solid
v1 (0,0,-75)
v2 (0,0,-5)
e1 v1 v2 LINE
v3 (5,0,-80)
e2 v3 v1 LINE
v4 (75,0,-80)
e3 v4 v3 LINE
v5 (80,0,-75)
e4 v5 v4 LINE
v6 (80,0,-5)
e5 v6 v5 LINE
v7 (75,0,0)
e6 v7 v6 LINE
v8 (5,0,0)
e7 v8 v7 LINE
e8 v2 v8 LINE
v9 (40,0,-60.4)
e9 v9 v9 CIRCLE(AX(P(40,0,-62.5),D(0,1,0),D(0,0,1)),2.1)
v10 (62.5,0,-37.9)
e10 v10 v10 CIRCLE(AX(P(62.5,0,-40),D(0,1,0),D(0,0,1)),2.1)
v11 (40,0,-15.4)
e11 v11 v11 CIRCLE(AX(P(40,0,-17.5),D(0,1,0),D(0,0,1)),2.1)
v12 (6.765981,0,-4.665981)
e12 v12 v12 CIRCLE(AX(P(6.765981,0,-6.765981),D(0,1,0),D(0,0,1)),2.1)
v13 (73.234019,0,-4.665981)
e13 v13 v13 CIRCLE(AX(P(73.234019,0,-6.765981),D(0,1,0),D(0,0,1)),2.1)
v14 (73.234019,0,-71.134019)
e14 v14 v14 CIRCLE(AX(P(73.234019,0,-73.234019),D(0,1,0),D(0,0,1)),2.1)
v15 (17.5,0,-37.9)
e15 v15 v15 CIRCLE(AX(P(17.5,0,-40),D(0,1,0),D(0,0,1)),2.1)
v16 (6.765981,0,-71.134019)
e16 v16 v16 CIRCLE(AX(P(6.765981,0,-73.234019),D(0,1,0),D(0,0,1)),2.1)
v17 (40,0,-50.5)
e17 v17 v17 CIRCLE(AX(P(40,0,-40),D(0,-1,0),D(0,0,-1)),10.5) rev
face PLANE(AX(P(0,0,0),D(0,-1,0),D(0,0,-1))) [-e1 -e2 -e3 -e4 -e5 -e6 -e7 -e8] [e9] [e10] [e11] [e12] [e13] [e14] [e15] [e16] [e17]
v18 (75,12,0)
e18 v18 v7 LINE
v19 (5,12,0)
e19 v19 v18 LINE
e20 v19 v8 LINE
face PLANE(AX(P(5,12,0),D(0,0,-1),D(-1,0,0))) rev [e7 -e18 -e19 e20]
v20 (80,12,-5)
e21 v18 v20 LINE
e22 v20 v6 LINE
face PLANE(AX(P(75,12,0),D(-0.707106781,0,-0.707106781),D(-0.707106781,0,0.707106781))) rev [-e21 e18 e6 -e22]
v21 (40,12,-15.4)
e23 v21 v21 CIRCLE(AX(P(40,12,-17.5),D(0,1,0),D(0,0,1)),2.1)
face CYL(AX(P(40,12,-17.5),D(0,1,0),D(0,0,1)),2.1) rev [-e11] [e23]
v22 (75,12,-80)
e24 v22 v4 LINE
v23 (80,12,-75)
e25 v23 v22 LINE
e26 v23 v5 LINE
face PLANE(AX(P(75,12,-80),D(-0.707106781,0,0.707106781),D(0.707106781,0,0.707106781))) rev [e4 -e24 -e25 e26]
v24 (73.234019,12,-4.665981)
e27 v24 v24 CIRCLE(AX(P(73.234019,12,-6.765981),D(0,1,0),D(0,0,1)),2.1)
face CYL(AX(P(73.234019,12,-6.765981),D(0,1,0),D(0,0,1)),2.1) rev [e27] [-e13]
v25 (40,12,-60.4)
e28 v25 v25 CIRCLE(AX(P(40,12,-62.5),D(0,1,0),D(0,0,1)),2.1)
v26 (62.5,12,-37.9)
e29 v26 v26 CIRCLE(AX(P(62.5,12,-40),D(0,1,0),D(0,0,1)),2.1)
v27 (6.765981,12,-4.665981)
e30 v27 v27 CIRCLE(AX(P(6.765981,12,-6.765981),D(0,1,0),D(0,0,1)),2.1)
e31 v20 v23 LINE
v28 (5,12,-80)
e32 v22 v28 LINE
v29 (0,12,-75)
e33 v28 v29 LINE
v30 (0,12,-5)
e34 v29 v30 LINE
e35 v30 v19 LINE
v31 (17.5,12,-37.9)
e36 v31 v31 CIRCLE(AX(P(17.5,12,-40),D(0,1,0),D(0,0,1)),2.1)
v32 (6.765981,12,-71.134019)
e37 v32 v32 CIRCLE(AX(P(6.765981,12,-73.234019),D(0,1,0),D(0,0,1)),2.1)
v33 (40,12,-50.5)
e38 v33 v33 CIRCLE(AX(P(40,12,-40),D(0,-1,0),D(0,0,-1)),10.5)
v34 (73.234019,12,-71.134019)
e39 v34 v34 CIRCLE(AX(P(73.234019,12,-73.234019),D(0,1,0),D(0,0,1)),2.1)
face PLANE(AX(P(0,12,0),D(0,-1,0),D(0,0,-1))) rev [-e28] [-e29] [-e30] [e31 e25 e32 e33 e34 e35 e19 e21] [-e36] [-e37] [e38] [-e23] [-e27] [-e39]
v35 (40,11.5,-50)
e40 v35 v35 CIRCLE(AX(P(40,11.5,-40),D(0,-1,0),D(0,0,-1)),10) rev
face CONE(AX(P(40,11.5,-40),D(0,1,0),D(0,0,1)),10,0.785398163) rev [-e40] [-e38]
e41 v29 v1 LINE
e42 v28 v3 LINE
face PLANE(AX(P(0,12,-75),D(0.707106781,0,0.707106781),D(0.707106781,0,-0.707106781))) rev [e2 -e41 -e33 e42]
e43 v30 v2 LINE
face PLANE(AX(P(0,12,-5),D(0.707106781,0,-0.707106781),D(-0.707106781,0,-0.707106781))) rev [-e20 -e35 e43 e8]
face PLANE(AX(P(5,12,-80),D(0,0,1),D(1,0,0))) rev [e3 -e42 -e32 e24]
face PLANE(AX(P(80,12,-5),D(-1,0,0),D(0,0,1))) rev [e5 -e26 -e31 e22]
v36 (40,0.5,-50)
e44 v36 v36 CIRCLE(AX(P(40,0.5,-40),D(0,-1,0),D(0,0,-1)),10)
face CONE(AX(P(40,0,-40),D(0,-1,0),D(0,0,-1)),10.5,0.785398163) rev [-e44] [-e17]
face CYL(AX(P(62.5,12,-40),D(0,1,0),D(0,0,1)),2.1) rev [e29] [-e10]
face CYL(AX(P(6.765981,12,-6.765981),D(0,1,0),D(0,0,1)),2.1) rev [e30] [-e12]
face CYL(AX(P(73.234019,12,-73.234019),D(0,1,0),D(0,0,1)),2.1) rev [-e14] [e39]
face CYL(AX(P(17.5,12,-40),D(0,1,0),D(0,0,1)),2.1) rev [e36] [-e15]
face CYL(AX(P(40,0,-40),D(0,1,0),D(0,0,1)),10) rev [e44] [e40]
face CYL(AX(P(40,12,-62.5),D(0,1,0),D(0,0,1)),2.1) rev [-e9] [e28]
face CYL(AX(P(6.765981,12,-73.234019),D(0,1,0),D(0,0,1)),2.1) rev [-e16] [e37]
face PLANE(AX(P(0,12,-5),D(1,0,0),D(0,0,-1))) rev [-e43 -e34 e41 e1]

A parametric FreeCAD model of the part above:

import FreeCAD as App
import Part
import Sketcher
Q = App.Units.Quantity


def edges_at(feature, points):
    """Names of the edges that pass closest to the given points."""
    edges = feature.Shape.Edges
    near = lambda p: min(range(len(edges)), key=lambda i: edges[i].distToShape(Part.Vertex(*p))[0])
    return sorted({f"Edge{near(p) + 1}" for p in points})

doc = App.newDocument("Part")
body = doc.addObject("PartDesign::Body", "Body")

sketch1 = doc.addObject("Sketcher::SketchObject", "Sketch")
body.addObject(sketch1)
sketch1.AttachmentSupport = (doc.XZ_Plane, [""])
sketch1.MapMode = "FlatFace"
sketch1.addGeometry(Part.LineSegment(App.Vector(5, -80, 0), App.Vector(0, -75, 0)), False)
sketch1.addGeometry(Part.LineSegment(App.Vector(0, -75, 0), App.Vector(0, -5, 0)), False)
sketch1.addGeometry(Part.LineSegment(App.Vector(0, -5, 0), App.Vector(5, 0, 0)), False)
sketch1.addGeometry(Part.LineSegment(App.Vector(5, 0, 0), App.Vector(75, 0, 0)), False)
sketch1.addGeometry(Part.LineSegment(App.Vector(75, 0, 0), App.Vector(80, -5, 0)), False)
sketch1.addGeometry(Part.LineSegment(App.Vector(80, -5, 0), App.Vector(80, -75, 0)), False)
sketch1.addGeometry(Part.LineSegment(App.Vector(80, -75, 0), App.Vector(75, -80, 0)), False)
sketch1.addGeometry(Part.LineSegment(App.Vector(75, -80, 0), App.Vector(5, -80, 0)), False)
sketch1.addConstraint(Sketcher.Constraint("Coincident", 0, 2, 1, 1))
sketch1.addConstraint(Sketcher.Constraint("Coincident", 1, 2, 2, 1))
sketch1.addConstraint(Sketcher.Constraint("Coincident", 2, 2, 3, 1))
sketch1.addConstraint(Sketcher.Constraint("Coincident", 3, 2, 4, 1))
sketch1.addConstraint(Sketcher.Constraint("Coincident", 4, 2, 5, 1))
sketch1.addConstraint(Sketcher.Constraint("Coincident", 5, 2, 6, 1))
sketch1.addConstraint(Sketcher.Constraint("Coincident", 6, 2, 7, 1))
sketch1.addConstraint(Sketcher.Constraint("Coincident", 7, 2, 0, 1))
sketch1.addConstraint(Sketcher.Constraint("Vertical", 1))
sketch1.addConstraint(Sketcher.Constraint("Horizontal", 3))
sketch1.addConstraint(Sketcher.Constraint("Vertical", 5))
sketch1.addConstraint(Sketcher.Constraint("Horizontal", 7))
sketch1.addConstraint(Sketcher.Constraint("PointOnObject", 0, 2, -2))
sketch1.addConstraint(Sketcher.Constraint("PointOnObject", 2, 2, -1))
sketch1.addConstraint(Sketcher.Constraint("Perpendicular", 0, 2))
sketch1.addConstraint(Sketcher.Constraint("Perpendicular", 2, 4))
sketch1.addConstraint(Sketcher.Constraint("Perpendicular", 4, 6))
sketch1.addConstraint(Sketcher.Constraint("Horizontal", 1, 2, 4, 2))
sketch1.addConstraint(Sketcher.Constraint("Horizontal", 0, 2, 5, 2))
sketch1.addConstraint(Sketcher.Constraint("Vertical", 3, 2, 6, 2))
sketch1.addConstraint(Sketcher.Constraint("Vertical", 2, 2, 7, 2))
sketch1.addConstraint(Sketcher.Constraint("Equal", 7, 1))
sketch1.addConstraint(Sketcher.Constraint("DistanceX", 3, 1, 3, 2, Q("70 mm")))
sketch1.addConstraint(Sketcher.Constraint("DistanceY", 0, 2, -1, 1, Q("75 mm")))
pad1 = doc.addObject("PartDesign::Pad", "Pad")
body.addObject(pad1)
pad1.Profile = sketch1
pad1.Length = 12
pad1.Reversed = True

sketch2 = doc.addObject("Sketcher::SketchObject", "Sketch001")
body.addObject(sketch2)
sketch2.AttachmentSupport = (doc.XZ_Plane, [""])
sketch2.MapMode = "FlatFace"
sketch2.AttachmentOffset = App.Placement(App.Vector(0, 0, -12), App.Rotation())
sketch2.addGeometry(Part.Circle(App.Vector(6.8, -73.2, 0), App.Vector(0, 0, 1), 2.1), False)
sketch2.addGeometry(Part.Circle(App.Vector(40, -62.5, 0), App.Vector(0, 0, 1), 2.1), False)
sketch2.addGeometry(Part.Circle(App.Vector(73.2, -73.2, 0), App.Vector(0, 0, 1), 2.1), False)
sketch2.addGeometry(Part.Circle(App.Vector(62.5, -40, 0), App.Vector(0, 0, 1), 2.1), False)
sketch2.addGeometry(Part.Circle(App.Vector(40, -17.5, 0), App.Vector(0, 0, 1), 2.1), False)
sketch2.addGeometry(Part.Circle(App.Vector(17.5, -40, 0), App.Vector(0, 0, 1), 2.1), False)
sketch2.addGeometry(Part.Circle(App.Vector(6.8, -6.8, 0), App.Vector(0, 0, 1), 2.1), False)
sketch2.addGeometry(Part.Circle(App.Vector(73.2, -6.8, 0), App.Vector(0, 0, 1), 2.1), False)
sketch2.addConstraint(Sketcher.Constraint("Equal", 0, 1))
sketch2.addConstraint(Sketcher.Constraint("Equal", 1, 2))
sketch2.addConstraint(Sketcher.Constraint("Equal", 2, 3))
sketch2.addConstraint(Sketcher.Constraint("Equal", 3, 4))
sketch2.addConstraint(Sketcher.Constraint("Equal", 4, 5))
sketch2.addConstraint(Sketcher.Constraint("Equal", 5, 6))
sketch2.addConstraint(Sketcher.Constraint("Equal", 6, 7))
sketch2.addConstraint(Sketcher.Constraint("Horizontal", 0, 3, 2, 3))
sketch2.addConstraint(Sketcher.Constraint("Horizontal", 3, 3, 5, 3))
sketch2.addConstraint(Sketcher.Constraint("Horizontal", 6, 3, 7, 3))
sketch2.addConstraint(Sketcher.Constraint("Vertical", 1, 3, 4, 3))
sketch2.addConstraint(Sketcher.Constraint("Vertical", 0, 3, 6, 3))
sketch2.addConstraint(Sketcher.Constraint("Vertical", 2, 3, 7, 3))
sketch2.addConstraint(Sketcher.Constraint("Diameter", 0, Q("4.2 mm")))
sketch2.addConstraint(Sketcher.Constraint("DistanceX", -1, 1, 1, 3, Q("40 mm")))
sketch2.addConstraint(Sketcher.Constraint("DistanceY", 3, 3, -1, 1, Q("40 mm")))
sketch2.addConstraint(Sketcher.Constraint("DistanceY", 1, 3, 4, 3, Q("45 mm")))
sketch2.addConstraint(Sketcher.Constraint("DistanceX", 5, 3, 3, 3, Q("45 mm")))
sketch2.addConstraint(Sketcher.Constraint("DistanceY", 1, 3, -1, 1, Q("62.5 mm")))
sketch2.addConstraint(Sketcher.Constraint("DistanceX", -1, 1, 3, 3, Q("62.5 mm")))
sketch2.addConstraint(Sketcher.Constraint("DistanceX", -1, 1, 0, 3, Q("6.765981 mm")))
sketch2.addConstraint(Sketcher.Constraint("DistanceY", 0, 3, -1, 1, Q("73.234019 mm")))
sketch2.addConstraint(Sketcher.Constraint("DistanceX", -1, 1, 2, 3, Q("73.234019 mm")))
sketch2.addConstraint(Sketcher.Constraint("DistanceY", 6, 3, -1, 1, Q("6.765981 mm")))
doc.recompute()
hole = doc.addObject("PartDesign::Hole", "Hole")
body.addObject(hole)
hole.Profile = sketch2
hole.ThreadType = "None"
hole.Diameter = 4.2
hole.DepthType = "ThroughAll"
hole.Reversed = True

sketch3 = doc.addObject("Sketcher::SketchObject", "Sketch002")
body.addObject(sketch3)
sketch3.AttachmentSupport = (doc.XZ_Plane, [""])
sketch3.MapMode = "FlatFace"
sketch3.AttachmentOffset = App.Placement(App.Vector(0, 0, -12), App.Rotation())
sketch3.addGeometry(Part.Circle(App.Vector(40, -40, 0), App.Vector(0, 0, 1), 10), False)
sketch3.addConstraint(Sketcher.Constraint("Diameter", 0, Q("20 mm")))
sketch3.addConstraint(Sketcher.Constraint("DistanceX", -1, 1, 0, 3, Q("40 mm")))
sketch3.addConstraint(Sketcher.Constraint("DistanceY", 0, 3, -1, 1, Q("40 mm")))
pocket1 = doc.addObject("PartDesign::Pocket", "Pocket")
body.addObject(pocket1)
pocket1.Profile = sketch3
pocket1.Type = "ThroughAll"
pocket1.Reversed = True
doc.recompute()

chamfer = doc.addObject("PartDesign::Chamfer", "Chamfer")
body.addObject(chamfer)
chamfer.Base = (pocket1, edges_at(pocket1, [(40, 0, -50), (40, 12, -50)]))
chamfer.Size = 0.5

doc.recompute()
